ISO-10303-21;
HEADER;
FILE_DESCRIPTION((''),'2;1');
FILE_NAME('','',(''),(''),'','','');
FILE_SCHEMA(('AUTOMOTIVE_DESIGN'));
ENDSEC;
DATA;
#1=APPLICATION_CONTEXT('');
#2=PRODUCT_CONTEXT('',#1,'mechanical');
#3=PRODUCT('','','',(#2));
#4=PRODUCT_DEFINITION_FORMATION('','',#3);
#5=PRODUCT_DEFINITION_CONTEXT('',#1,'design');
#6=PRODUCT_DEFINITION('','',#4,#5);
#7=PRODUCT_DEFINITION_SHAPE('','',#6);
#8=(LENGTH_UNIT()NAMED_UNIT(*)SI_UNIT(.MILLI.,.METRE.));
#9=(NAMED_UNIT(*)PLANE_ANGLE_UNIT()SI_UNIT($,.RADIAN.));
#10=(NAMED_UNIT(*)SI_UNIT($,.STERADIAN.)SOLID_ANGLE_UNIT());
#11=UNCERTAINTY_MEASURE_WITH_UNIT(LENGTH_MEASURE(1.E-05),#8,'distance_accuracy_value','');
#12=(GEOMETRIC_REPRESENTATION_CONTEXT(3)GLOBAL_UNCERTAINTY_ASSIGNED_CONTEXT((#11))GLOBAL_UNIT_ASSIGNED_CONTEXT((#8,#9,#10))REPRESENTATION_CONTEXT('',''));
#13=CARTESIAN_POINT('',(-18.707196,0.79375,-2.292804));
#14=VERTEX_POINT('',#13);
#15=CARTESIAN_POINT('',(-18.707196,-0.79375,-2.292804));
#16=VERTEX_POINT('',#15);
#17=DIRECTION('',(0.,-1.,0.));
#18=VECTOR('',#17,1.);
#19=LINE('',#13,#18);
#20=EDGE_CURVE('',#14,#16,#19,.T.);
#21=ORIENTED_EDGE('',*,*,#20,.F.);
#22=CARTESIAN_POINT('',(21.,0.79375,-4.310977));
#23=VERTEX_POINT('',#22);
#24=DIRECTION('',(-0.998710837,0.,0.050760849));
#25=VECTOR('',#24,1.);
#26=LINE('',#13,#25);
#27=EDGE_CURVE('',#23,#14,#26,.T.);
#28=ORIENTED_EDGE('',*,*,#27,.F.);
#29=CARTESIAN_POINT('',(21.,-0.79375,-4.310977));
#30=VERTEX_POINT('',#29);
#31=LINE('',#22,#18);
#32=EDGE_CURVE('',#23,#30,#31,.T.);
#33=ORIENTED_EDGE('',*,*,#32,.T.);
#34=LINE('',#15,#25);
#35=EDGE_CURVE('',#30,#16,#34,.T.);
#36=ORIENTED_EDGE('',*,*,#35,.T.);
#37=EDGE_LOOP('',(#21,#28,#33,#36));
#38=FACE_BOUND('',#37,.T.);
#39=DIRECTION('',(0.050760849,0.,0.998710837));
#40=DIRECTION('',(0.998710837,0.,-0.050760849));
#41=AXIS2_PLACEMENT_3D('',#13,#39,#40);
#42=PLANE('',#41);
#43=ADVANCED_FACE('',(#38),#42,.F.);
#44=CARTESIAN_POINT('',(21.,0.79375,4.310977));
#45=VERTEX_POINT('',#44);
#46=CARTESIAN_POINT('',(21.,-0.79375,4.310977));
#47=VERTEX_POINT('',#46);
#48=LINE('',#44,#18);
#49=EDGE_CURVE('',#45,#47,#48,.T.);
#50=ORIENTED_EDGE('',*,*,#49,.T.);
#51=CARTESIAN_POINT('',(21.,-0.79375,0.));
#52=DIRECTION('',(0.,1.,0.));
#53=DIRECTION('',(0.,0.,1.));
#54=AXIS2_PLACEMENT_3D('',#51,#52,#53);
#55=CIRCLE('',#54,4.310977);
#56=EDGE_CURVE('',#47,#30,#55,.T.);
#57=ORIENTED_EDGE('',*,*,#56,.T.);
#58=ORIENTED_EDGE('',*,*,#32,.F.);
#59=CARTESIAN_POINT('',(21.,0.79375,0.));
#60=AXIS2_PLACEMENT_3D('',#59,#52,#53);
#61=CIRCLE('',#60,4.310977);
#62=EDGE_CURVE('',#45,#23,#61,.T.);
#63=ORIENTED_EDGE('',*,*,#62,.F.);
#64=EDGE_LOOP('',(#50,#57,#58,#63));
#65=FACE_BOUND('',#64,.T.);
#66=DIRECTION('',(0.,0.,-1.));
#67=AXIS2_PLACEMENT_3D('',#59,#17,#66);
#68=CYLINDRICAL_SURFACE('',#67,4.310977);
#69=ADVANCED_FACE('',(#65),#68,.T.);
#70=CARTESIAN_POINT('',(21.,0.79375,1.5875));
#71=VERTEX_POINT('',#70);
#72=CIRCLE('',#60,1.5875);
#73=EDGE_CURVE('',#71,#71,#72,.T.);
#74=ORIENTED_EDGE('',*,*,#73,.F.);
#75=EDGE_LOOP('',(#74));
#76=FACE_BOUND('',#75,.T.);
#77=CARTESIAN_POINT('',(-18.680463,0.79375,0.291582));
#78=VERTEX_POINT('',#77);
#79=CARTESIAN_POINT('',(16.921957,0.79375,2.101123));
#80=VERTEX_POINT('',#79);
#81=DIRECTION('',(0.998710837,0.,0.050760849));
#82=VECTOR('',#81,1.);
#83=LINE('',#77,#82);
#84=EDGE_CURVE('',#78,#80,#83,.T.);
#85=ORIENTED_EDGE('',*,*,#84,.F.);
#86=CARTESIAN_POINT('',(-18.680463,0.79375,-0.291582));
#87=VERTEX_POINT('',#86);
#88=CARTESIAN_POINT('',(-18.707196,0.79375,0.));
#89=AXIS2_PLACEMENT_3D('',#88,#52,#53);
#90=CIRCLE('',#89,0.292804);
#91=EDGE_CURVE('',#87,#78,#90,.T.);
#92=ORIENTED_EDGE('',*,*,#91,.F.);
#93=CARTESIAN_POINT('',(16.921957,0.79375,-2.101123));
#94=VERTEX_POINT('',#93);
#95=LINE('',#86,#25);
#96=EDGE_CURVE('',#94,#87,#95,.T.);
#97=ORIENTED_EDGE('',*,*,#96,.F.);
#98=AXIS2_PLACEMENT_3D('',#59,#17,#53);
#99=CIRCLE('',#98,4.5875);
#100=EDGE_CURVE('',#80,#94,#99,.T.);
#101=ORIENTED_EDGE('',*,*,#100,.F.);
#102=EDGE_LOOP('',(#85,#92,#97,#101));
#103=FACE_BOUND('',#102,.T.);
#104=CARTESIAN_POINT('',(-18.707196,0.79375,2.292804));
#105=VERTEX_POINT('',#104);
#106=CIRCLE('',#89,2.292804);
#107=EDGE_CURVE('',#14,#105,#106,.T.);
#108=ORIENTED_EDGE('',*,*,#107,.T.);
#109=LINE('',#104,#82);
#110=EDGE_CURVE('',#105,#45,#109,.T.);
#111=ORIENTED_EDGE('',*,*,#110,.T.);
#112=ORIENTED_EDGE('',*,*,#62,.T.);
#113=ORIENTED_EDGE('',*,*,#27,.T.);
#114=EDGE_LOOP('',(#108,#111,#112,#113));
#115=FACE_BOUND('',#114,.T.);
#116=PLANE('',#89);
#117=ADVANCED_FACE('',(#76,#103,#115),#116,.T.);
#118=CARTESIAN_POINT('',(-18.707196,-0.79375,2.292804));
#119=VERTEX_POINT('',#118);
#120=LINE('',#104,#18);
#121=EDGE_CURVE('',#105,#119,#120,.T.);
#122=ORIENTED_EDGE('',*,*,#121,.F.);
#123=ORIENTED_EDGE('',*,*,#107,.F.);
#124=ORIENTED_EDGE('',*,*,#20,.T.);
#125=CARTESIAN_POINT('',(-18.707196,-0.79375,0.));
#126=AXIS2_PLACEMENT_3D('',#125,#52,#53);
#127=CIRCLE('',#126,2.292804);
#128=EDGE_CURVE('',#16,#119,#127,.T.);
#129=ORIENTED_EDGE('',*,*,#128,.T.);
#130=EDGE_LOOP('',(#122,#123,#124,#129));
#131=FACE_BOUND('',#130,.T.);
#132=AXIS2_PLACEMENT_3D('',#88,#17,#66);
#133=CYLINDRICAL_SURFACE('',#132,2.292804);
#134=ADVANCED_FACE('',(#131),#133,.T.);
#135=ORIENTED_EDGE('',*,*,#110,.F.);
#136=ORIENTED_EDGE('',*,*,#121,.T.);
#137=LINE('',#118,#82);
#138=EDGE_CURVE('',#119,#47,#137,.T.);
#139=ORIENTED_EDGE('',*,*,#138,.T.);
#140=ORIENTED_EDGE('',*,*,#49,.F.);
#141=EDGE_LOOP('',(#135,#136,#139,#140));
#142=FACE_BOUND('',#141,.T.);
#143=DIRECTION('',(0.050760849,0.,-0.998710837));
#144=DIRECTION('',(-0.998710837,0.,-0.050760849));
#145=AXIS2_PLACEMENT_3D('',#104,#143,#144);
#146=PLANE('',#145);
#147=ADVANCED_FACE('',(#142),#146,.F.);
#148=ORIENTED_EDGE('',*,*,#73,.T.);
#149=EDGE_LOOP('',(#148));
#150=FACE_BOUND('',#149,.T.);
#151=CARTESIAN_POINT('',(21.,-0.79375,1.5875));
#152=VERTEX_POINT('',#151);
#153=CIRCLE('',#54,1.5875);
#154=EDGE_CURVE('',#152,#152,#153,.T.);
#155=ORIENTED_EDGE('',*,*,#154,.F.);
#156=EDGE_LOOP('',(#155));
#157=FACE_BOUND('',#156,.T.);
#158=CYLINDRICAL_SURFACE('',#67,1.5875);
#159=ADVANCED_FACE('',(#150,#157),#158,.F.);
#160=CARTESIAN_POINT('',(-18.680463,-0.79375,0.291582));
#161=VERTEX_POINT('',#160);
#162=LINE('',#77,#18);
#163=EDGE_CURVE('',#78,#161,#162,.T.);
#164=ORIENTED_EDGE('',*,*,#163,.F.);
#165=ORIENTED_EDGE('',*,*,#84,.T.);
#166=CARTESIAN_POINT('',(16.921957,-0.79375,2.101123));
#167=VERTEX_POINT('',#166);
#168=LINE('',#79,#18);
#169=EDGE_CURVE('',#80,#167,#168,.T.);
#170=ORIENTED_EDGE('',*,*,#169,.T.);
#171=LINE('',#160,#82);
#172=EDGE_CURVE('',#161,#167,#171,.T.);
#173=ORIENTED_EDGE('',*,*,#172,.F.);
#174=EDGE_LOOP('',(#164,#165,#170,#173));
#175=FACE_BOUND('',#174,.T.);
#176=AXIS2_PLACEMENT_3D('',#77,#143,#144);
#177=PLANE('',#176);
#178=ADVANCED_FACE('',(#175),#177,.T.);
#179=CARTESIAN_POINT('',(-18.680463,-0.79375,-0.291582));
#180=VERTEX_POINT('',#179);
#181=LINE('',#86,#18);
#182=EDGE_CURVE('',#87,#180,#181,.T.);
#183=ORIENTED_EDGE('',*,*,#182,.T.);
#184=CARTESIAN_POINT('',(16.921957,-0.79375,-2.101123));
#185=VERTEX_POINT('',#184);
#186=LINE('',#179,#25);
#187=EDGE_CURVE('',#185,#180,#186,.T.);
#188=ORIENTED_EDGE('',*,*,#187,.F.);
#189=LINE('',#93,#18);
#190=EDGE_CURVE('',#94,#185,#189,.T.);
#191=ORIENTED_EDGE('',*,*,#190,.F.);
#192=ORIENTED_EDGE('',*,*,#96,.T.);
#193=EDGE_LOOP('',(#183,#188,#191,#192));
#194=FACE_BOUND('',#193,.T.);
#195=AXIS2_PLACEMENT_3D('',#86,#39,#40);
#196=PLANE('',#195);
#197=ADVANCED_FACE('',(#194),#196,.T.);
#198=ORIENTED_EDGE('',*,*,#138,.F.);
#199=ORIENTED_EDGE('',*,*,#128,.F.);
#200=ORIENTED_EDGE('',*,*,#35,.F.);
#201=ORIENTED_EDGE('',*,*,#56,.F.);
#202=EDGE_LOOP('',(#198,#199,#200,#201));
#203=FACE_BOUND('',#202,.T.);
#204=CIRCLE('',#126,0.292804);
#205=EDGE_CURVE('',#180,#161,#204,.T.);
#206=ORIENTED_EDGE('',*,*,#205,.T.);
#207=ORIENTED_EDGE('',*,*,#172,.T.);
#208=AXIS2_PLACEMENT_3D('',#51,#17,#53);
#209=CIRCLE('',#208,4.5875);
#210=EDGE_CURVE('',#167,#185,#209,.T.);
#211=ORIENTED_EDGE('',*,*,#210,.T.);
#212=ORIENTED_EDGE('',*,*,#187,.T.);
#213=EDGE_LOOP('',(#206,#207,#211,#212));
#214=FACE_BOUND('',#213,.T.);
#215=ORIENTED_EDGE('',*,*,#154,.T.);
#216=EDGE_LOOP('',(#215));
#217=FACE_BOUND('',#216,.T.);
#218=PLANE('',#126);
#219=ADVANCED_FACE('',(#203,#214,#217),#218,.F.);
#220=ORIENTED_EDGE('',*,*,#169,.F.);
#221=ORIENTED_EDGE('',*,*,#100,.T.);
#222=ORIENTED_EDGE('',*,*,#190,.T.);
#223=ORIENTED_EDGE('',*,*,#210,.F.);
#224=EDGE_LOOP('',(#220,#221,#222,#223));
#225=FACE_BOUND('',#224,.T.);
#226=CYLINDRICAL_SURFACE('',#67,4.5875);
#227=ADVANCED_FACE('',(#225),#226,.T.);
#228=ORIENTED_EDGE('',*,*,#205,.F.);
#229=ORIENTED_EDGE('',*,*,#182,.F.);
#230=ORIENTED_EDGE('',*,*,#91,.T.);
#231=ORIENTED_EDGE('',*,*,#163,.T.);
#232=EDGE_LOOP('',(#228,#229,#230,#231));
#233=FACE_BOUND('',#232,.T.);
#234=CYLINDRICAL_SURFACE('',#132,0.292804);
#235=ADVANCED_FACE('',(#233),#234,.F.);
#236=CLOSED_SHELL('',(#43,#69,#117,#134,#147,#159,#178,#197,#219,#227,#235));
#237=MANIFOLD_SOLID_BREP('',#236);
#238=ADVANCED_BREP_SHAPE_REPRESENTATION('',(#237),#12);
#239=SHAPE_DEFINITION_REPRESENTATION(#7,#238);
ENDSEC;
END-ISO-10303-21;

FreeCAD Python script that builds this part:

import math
import FreeCAD as App
import Part
import Sketcher
from FreeCAD import Vector
Q = App.Units.Quantity

doc = App.newDocument("Part")
body = doc.addObject("PartDesign::Body", "Body")

# Sketch on XZ plane
sketch1 = body.newObject("Sketcher::SketchObject", "Sketch")
sketch1.AttachmentSupport = (doc.getObject("XZ_Plane"), [""])
sketch1.MapMode = "FlatFace"
sketch1.addGeometry([
    Part.LineSegment(Vector(21, -4.31, 0), Vector(-18.71, -2.29, 0)),  # 0
    Part.ArcOfCircle(Part.Circle(Vector(-18.71, 0, 0), Vector(0, 0, 1), 2.29), math.radians(90), math.radians(270)),  # 1
    Part.LineSegment(Vector(-18.71, 2.29, 0), Vector(21, 4.31, 0)),  # 2
    Part.ArcOfCircle(Part.Circle(Vector(21, 0, 0), Vector(0, 0, 1), 4.31), math.radians(-90), math.radians(90)),  # 3
    Part.Circle(Vector(21, 0, 0), Vector(0, 0, 1), 1.59),  # 4
    Part.LineSegment(Vector(-18.68, -0.29, 0), Vector(16.92, -2.1, 0)),  # 5
    Part.ArcOfCircle(Part.Circle(Vector(21, 0, 0), Vector(0, 0, 1), 4.59), math.radians(153), math.radians(207)),  # 6
    Part.LineSegment(Vector(16.92, 2.1, 0), Vector(-18.68, 0.29, 0)),  # 7
    Part.ArcOfCircle(Part.Circle(Vector(-18.71, 0, 0), Vector(0, 0, 1), 0.29), math.radians(85), math.radians(275)),  # 8
], False)
sketch1.addConstraint([
    Sketcher.Constraint("Coincident", 0, 2, 1, 2),
    Sketcher.Constraint("Coincident", 1, 1, 2, 1),
    Sketcher.Constraint("Coincident", 2, 2, 3, 2),
    Sketcher.Constraint("Coincident", 3, 1, 0, 1),
    Sketcher.Constraint("Coincident", 5, 2, 6, 2),
    Sketcher.Constraint("Coincident", 6, 1, 7, 1),
    Sketcher.Constraint("Coincident", 7, 2, 8, 1),
    Sketcher.Constraint("Coincident", 8, 2, 5, 1),
    Sketcher.Constraint("Coincident", 4, 3, 3, 3),
    Sketcher.Constraint("Coincident", 6, 3, 3, 3),
    Sketcher.Constraint("Coincident", 8, 3, 1, 3),
    Sketcher.Constraint("Symmetric", 0, 2, 1, 1, -1),
    Sketcher.Constraint("Symmetric", 2, 2, 3, 1, -1),
    Sketcher.Constraint("Parallel", 0, 5),
    Sketcher.Constraint("Parallel", 2, 7),
    Sketcher.Constraint("Vertical", 8, 3, 0, 2),
    Sketcher.Constraint("Vertical", 6, 3, 2, 2),
    Sketcher.Constraint("Vertical", 5, 2, 6, 1),
    Sketcher.Constraint("Diameter", 4, Q("0.125 in")),
    Sketcher.Constraint("Radius", 6, Q("4.5875 mm")),
    Sketcher.Constraint("Radius", 1, Q("2.292804 mm")),
    Sketcher.Constraint("Radius", 3, Q("4.310977 mm")),
    Sketcher.Constraint("Radius", 8, Q("0.292804 mm")),
    Sketcher.Constraint("DistanceX", -1, 1, 3, 3, Q("21 mm")),
    Sketcher.Constraint("DistanceY", 5, 2, 2, 2, Q("6.412101 mm")),
    Sketcher.Constraint("Distance", 0, Q("39.758451 mm")),
])
pad1 = body.newObject("PartDesign::Pad", "Pad")
pad1.Profile = sketch1
pad1.Length = Q("0.0625 in")
pad1.Midplane = True

doc.recompute()
